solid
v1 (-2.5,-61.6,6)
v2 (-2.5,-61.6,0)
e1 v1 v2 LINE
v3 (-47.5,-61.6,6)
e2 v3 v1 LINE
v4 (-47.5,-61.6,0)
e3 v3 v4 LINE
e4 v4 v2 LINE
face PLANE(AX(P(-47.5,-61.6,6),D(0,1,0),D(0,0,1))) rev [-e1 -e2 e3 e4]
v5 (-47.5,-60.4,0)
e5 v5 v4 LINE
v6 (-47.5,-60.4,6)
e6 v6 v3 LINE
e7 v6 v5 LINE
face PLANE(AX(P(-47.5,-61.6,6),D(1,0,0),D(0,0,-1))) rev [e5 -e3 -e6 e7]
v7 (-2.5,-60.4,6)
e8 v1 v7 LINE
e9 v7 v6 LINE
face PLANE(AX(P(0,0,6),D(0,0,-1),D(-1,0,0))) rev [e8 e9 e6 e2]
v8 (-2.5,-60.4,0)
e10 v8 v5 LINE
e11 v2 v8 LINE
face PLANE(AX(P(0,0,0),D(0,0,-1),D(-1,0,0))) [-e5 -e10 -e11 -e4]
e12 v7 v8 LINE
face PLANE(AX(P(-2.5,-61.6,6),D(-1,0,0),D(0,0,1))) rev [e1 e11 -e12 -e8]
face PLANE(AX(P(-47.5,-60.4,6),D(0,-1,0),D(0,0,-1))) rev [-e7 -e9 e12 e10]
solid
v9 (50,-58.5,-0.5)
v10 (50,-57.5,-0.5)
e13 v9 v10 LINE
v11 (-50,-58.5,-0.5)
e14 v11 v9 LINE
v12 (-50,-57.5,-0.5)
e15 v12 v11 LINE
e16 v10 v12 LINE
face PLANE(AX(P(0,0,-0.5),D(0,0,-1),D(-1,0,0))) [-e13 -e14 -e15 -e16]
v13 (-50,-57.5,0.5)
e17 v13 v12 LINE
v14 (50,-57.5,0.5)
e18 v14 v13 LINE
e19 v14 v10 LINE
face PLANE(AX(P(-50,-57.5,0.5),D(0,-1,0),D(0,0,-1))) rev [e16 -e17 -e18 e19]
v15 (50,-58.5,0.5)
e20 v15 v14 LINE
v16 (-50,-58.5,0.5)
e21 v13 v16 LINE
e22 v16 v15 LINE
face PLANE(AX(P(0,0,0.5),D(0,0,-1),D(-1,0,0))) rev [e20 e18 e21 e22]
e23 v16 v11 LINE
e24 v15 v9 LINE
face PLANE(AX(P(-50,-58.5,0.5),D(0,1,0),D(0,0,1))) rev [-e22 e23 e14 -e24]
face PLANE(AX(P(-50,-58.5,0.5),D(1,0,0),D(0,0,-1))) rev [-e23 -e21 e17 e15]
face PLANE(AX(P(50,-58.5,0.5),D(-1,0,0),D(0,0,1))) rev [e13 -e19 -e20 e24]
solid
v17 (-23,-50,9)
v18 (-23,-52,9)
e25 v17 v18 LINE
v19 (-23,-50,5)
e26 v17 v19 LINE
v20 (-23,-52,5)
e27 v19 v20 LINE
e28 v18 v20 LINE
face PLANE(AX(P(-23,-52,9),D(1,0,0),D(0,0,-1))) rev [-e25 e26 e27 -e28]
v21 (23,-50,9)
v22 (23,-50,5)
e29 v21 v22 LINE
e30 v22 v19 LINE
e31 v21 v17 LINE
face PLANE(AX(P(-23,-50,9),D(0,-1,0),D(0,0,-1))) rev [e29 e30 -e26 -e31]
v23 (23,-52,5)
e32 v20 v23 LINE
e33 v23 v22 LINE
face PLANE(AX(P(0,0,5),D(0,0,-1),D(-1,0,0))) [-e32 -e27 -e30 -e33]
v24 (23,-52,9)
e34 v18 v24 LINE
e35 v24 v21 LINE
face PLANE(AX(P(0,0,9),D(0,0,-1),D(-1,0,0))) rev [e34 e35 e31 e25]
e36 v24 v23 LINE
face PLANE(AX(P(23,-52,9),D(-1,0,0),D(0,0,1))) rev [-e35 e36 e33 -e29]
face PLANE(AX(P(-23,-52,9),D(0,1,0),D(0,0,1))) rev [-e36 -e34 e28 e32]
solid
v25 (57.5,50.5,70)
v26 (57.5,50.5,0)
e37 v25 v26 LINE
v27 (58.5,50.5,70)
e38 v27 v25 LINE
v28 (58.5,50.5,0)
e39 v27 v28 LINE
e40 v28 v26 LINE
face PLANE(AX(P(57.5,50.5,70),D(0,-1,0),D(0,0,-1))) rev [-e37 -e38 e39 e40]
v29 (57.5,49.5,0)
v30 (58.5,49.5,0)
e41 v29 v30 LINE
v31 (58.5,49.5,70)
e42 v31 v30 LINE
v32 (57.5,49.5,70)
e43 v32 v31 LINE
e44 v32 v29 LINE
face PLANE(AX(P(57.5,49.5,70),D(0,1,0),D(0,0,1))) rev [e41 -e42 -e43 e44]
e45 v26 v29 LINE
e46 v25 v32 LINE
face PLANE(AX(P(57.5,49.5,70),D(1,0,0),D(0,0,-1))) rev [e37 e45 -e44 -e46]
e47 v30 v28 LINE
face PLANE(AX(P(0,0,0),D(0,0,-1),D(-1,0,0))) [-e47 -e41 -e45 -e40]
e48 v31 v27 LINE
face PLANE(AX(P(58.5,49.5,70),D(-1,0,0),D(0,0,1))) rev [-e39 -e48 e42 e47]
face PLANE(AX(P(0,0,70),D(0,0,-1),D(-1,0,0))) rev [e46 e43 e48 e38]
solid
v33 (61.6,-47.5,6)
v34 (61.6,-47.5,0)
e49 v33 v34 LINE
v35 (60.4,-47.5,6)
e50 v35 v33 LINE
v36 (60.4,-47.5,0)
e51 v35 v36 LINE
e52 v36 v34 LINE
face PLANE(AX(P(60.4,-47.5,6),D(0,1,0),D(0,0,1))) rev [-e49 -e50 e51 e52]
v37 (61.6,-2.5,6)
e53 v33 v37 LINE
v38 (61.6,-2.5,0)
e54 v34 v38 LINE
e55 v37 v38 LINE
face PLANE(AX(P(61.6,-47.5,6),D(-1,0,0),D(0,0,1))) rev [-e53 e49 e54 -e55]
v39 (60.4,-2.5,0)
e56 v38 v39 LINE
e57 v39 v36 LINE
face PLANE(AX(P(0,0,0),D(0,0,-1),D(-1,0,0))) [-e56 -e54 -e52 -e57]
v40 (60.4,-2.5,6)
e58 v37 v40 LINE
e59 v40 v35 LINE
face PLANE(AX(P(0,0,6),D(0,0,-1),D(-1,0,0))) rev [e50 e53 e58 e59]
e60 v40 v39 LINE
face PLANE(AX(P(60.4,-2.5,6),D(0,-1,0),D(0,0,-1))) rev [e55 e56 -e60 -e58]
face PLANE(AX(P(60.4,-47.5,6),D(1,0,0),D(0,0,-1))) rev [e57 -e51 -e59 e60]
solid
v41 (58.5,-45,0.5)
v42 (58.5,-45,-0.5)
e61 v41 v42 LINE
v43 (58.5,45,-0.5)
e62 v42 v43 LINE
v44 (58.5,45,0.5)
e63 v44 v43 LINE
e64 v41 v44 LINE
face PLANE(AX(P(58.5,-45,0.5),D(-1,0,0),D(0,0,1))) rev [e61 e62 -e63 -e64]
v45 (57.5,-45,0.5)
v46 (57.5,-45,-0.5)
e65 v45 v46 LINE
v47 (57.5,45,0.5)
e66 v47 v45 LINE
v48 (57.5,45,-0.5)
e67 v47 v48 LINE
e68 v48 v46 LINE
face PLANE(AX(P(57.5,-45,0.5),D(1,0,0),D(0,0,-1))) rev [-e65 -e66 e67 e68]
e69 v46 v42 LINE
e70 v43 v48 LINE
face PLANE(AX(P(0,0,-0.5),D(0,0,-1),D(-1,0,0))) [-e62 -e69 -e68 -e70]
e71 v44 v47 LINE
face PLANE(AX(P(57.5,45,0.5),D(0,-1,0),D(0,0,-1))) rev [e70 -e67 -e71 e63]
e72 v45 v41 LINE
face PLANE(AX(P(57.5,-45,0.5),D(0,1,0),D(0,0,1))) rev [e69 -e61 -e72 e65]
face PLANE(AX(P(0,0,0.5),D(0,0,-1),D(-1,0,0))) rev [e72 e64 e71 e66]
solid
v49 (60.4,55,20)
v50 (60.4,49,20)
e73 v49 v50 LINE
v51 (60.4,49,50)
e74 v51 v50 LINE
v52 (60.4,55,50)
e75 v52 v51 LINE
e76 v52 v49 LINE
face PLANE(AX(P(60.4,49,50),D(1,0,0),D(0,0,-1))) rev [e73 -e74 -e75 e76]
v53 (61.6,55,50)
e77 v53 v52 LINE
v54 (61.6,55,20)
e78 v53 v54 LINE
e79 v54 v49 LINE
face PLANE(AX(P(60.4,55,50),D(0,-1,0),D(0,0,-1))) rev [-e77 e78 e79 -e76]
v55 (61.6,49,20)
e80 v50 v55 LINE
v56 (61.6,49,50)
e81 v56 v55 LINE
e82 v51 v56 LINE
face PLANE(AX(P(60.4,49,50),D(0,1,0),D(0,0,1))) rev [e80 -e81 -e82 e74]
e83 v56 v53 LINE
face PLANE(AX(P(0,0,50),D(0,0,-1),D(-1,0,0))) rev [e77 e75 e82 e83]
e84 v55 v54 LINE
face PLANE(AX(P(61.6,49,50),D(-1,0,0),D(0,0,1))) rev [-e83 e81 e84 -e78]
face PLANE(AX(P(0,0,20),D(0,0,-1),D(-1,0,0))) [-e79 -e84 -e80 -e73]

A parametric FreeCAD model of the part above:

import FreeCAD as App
import Part
import Sketcher

V = App.Vector


def add_polygon(sketch, points):
    """Adds a closed chain of lines whose ends are joined by coincident constraints."""
    first, n = sketch.GeometryCount, len(points)
    for a, b in zip(points, points[1:] + points[:1]):
        sketch.addGeometry(Part.LineSegment(App.Vector(*a, 0), App.Vector(*b, 0)), False)
    for i in range(n):
        sketch.addConstraint(Sketcher.Constraint("Coincident", first + i, 2, first + (i + 1) % n, 1))

doc = App.newDocument("Part")
body = doc.addObject("PartDesign::Body", "Body")

# Sketch on XY plane
sketch1 = doc.addObject("Sketcher::SketchObject", "Sketch")
body.addObject(sketch1)
sketch1.AttachmentSupport = (doc.XY_Plane, [""])
sketch1.MapMode = "FlatFace"
sketch1.AttachmentOffset = App.Placement(V(0, 0, -0.5), App.Rotation())
add_polygon(sketch1, [(-50, -57.5), (-50, -58.5), (50, -58.5), (50, -57.5)])  # lines 0-3
sketch1.addConstraint(Sketcher.Constraint("Vertical", 0))
sketch1.addConstraint(Sketcher.Constraint("Horizontal", 1))
sketch1.addConstraint(Sketcher.Constraint("Vertical", 2))
sketch1.addConstraint(Sketcher.Constraint("Horizontal", 3))
sketch1.addConstraint(Sketcher.Constraint("DistanceX", 1, 1, 1, 2, 100.0))
sketch1.addConstraint(Sketcher.Constraint("DistanceY", 0, 2, 0, 1, 1.0))
sketch1.addConstraint(Sketcher.Constraint("DistanceX", 0, 2, -1, 1, 50.0))
sketch1.addConstraint(Sketcher.Constraint("DistanceY", 0, 2, -1, 1, 58.5))
pad1 = doc.addObject("PartDesign::Pad", "Pad")
body.addObject(pad1)
pad1.Profile = sketch1
pad1.Length = 1
body2 = doc.addObject("PartDesign::Body", "Body001")

# Sketch on XY plane
sketch2 = doc.addObject("Sketcher::SketchObject", "Sketch001")
body2.addObject(sketch2)
sketch2.AttachmentSupport = (doc.getObject("XY_Plane001"), [""])
sketch2.MapMode = "FlatFace"
sketch2.AttachmentOffset = App.Placement(V(0, 0, -0.5), App.Rotation())
add_polygon(sketch2, [(57.5, 45), (57.5, -45), (58.5, -45), (58.5, 45)])  # lines 0-3
sketch2.addConstraint(Sketcher.Constraint("Vertical", 0))
sketch2.addConstraint(Sketcher.Constraint("Horizontal", 1))
sketch2.addConstraint(Sketcher.Constraint("Vertical", 2))
sketch2.addConstraint(Sketcher.Constraint("Horizontal", 3))
sketch2.addConstraint(Sketcher.Constraint("DistanceX", 1, 1, 1, 2, 1.0))
sketch2.addConstraint(Sketcher.Constraint("DistanceY", 0, 2, 0, 1, 90.0))
sketch2.addConstraint(Sketcher.Constraint("DistanceY", 0, 2, -1, 1, 45.0))
sketch2.addConstraint(Sketcher.Constraint("DistanceX", -1, 1, 0, 2, 57.5))
pad2 = doc.addObject("PartDesign::Pad", "Pad001")
body2.addObject(pad2)
pad2.Profile = sketch2
pad2.Length = 1
body3 = doc.addObject("PartDesign::Body", "Body002")

# Sketch on XY plane
sketch3 = doc.addObject("Sketcher::SketchObject", "Sketch002")
body3.addObject(sketch3)
sketch3.AttachmentSupport = (doc.getObject("XY_Plane002"), [""])
sketch3.MapMode = "FlatFace"
add_polygon(sketch3, [(57.5, 50.5), (57.5, 49.5), (58.5, 49.5), (58.5, 50.5)])  # lines 0-3
sketch3.addConstraint(Sketcher.Constraint("Vertical", 0))
sketch3.addConstraint(Sketcher.Constraint("Horizontal", 1))
sketch3.addConstraint(Sketcher.Constraint("Vertical", 2))
sketch3.addConstraint(Sketcher.Constraint("Horizontal", 3))
sketch3.addConstraint(Sketcher.Constraint("Equal", 3, 0))
sketch3.addConstraint(Sketcher.Constraint("DistanceX", 1, 1, 1, 2, 1.0))
sketch3.addConstraint(Sketcher.Constraint("DistanceX", -1, 1, 0, 2, 57.5))
sketch3.addConstraint(Sketcher.Constraint("DistanceY", -1, 1, 0, 2, 49.5))
pad3 = doc.addObject("PartDesign::Pad", "Pad002")
body3.addObject(pad3)
pad3.Profile = sketch3
pad3.Length = 70
body4 = doc.addObject("PartDesign::Body", "Body003")

# Sketch on XY plane
sketch4 = doc.addObject("Sketcher::SketchObject", "Sketch003")
body4.addObject(sketch4)
sketch4.AttachmentSupport = (doc.getObject("XY_Plane003"), [""])
sketch4.MapMode = "FlatFace"
sketch4.AttachmentOffset = App.Placement(V(0, 0, 5), App.Rotation())
add_polygon(sketch4, [(-23, -50), (-23, -52), (23, -52), (23, -50)])  # lines 0-3
sketch4.addConstraint(Sketcher.Constraint("Vertical", 0))
sketch4.addConstraint(Sketcher.Constraint("Horizontal", 1))
sketch4.addConstraint(Sketcher.Constraint("Vertical", 2))
sketch4.addConstraint(Sketcher.Constraint("Horizontal", 3))
sketch4.addConstraint(Sketcher.Constraint("DistanceX", 1, 1, 1, 2, 46.0))
sketch4.addConstraint(Sketcher.Constraint("DistanceY", 0, 2, 0, 1, 2.0))
sketch4.addConstraint(Sketcher.Constraint("DistanceX", 0, 2, -1, 1, 23.0))
sketch4.addConstraint(Sketcher.Constraint("DistanceY", 0, 2, -1, 1, 52.0))
pad4 = doc.addObject("PartDesign::Pad", "Pad003")
body4.addObject(pad4)
pad4.Profile = sketch4
pad4.Length = 4
body5 = doc.addObject("PartDesign::Body", "Body004")

# Sketch on XY plane
sketch5 = doc.addObject("Sketcher::SketchObject", "Sketch004")
body5.addObject(sketch5)
sketch5.AttachmentSupport = (doc.getObject("XY_Plane004"), [""])
sketch5.MapMode = "FlatFace"
add_polygon(sketch5, [(-47.5, -60.4), (-47.5, -61.6), (-2.5, -61.6), (-2.5, -60.4)])  # lines 0-3
sketch5.addConstraint(Sketcher.Constraint("Vertical", 0))
sketch5.addConstraint(Sketcher.Constraint("Horizontal", 1))
sketch5.addConstraint(Sketcher.Constraint("Vertical", 2))
sketch5.addConstraint(Sketcher.Constraint("Horizontal", 3))
sketch5.addConstraint(Sketcher.Constraint("DistanceX", 1, 1, 1, 2, 45.0))
sketch5.addConstraint(Sketcher.Constraint("DistanceY", 0, 2, 0, 1, 1.2))
sketch5.addConstraint(Sketcher.Constraint("DistanceX", 0, 2, -1, 1, 47.5))
sketch5.addConstraint(Sketcher.Constraint("DistanceY", 0, 2, -1, 1, 61.6))
pad5 = doc.addObject("PartDesign::Pad", "Pad004")
body5.addObject(pad5)
pad5.Profile = sketch5
pad5.Length = 6
body6 = doc.addObject("PartDesign::Body", "Body005")

# Sketch on XY plane
sketch6 = doc.addObject("Sketcher::SketchObject", "Sketch005")
body6.addObject(sketch6)
sketch6.AttachmentSupport = (doc.getObject("XY_Plane005"), [""])
sketch6.MapMode = "FlatFace"
add_polygon(sketch6, [(60.4, -2.5), (60.4, -47.5), (61.6, -47.5), (61.6, -2.5)])  # lines 0-3
sketch6.addConstraint(Sketcher.Constraint("Vertical", 0))
sketch6.addConstraint(Sketcher.Constraint("Horizontal", 1))
sketch6.addConstraint(Sketcher.Constraint("Vertical", 2))
sketch6.addConstraint(Sketcher.Constraint("Horizontal", 3))
sketch6.addConstraint(Sketcher.Constraint("DistanceY", 0, 2, 0, 1, 45.0))
sketch6.addConstraint(Sketcher.Constraint("DistanceX", 1, 1, 1, 2, 1.2))
sketch6.addConstraint(Sketcher.Constraint("DistanceX", -1, 1, 0, 2, 60.4))
sketch6.addConstraint(Sketcher.Constraint("DistanceY", 0, 2, -1, 1, 47.5))
pad6 = doc.addObject("PartDesign::Pad", "Pad005")
body6.addObject(pad6)
pad6.Profile = sketch6
pad6.Length = 6
body7 = doc.addObject("PartDesign::Body", "Body006")

# Sketch on XY plane
sketch7 = doc.addObject("Sketcher::SketchObject", "Sketch006")
body7.addObject(sketch7)
sketch7.AttachmentSupport = (doc.getObject("XY_Plane006"), [""])
sketch7.MapMode = "FlatFace"
sketch7.AttachmentOffset = App.Placement(V(0, 0, 20), App.Rotation())
add_polygon(sketch7, [(60.4, 55), (60.4, 49), (61.6, 49), (61.6, 55)])  # lines 0-3
sketch7.addConstraint(Sketcher.Constraint("Vertical", 0))
sketch7.addConstraint(Sketcher.Constraint("Horizontal", 1))
sketch7.addConstraint(Sketcher.Constraint("Vertical", 2))
sketch7.addConstraint(Sketcher.Constraint("Horizontal", 3))
sketch7.addConstraint(Sketcher.Constraint("DistanceY", 0, 2, 0, 1, 6.0))
sketch7.addConstraint(Sketcher.Constraint("DistanceX", 1, 1, 1, 2, 1.2))
sketch7.addConstraint(Sketcher.Constraint("DistanceY", -1, 1, 0, 2, 49.0))
sketch7.addConstraint(Sketcher.Constraint("DistanceX", -1, 1, 0, 2, 60.4))
pad7 = doc.addObject("PartDesign::Pad", "Pad006")
body7.addObject(pad7)
pad7.Profile = sketch7
pad7.Length = 30

doc.recompute()
